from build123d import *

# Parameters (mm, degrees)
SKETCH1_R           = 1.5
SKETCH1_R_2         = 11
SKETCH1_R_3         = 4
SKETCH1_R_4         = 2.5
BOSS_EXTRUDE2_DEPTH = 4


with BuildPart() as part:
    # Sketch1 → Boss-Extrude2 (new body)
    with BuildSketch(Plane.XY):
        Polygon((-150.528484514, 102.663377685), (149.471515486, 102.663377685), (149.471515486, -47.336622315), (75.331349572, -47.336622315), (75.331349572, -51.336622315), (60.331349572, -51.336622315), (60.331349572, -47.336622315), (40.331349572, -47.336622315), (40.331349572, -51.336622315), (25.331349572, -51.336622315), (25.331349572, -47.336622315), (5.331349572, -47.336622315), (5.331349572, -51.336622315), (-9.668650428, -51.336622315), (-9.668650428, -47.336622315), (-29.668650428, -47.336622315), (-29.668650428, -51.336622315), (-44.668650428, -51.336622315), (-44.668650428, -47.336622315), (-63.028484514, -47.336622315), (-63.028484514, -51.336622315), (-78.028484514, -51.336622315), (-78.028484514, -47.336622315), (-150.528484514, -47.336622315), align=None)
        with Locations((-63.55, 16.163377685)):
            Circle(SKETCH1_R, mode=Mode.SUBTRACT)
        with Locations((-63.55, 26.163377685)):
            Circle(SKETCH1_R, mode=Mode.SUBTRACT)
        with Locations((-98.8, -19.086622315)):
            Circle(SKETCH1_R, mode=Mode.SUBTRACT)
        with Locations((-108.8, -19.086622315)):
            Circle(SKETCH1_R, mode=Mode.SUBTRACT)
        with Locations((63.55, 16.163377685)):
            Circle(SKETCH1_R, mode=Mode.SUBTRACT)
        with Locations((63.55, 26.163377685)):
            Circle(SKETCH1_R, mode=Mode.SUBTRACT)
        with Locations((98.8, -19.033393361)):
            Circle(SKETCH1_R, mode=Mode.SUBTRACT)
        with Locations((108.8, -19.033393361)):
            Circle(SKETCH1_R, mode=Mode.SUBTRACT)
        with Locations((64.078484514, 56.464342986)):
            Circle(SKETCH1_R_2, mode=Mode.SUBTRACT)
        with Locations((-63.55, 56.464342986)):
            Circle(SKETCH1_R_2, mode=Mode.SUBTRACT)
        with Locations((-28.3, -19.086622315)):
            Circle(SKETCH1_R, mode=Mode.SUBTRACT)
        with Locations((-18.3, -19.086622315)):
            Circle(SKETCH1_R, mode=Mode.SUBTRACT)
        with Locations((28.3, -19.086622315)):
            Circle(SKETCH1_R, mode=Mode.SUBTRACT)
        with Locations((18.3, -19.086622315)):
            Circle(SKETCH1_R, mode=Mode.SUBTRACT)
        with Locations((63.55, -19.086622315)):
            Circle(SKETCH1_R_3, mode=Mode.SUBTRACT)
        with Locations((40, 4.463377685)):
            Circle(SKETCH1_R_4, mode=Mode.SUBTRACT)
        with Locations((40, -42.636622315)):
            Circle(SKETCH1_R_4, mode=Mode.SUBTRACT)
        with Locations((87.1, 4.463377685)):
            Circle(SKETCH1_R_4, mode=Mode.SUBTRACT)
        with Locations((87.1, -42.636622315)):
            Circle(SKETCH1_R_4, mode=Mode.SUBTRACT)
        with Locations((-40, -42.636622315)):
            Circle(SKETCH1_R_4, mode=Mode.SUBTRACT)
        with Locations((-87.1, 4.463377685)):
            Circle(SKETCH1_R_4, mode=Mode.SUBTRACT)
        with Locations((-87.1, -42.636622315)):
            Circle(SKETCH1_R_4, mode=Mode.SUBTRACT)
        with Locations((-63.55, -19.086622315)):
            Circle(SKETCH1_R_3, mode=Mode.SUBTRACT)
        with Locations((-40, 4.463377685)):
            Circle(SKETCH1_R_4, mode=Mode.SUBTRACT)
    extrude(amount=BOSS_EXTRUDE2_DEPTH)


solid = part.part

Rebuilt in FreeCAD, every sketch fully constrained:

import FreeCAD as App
import Part
import Sketcher
from FreeCAD import Vector


def add_polygon(sketch, points):
    """Adds a closed chain of lines whose ends are joined by coincident constraints."""
    first, n = sketch.GeometryCount, len(points)
    for a, b in zip(points, points[1:] + points[:1]):
        sketch.addGeometry(Part.LineSegment(App.Vector(*a, 0), App.Vector(*b, 0)), False)
    for i in range(n):
        sketch.addConstraint(Sketcher.Constraint("Coincident", first + i, 2, first + (i + 1) % n, 1))

doc = App.newDocument("Part")
params = doc.addObject("Spreadsheet::Sheet", "Params")
for row, (alias, value) in enumerate([
    ("sketch1_diameter", "5 mm"),
    ("sketch1_diameter2", "3 mm"),
    ("sketch1_diameter3", "8 mm"),
    ("sketch1_diameter4", "22 mm"),
    ("sketch1_width", "300 mm"),
    ("pad1_length", "4 mm"),
], start=1):
    params.set(f"A{row}", alias)
    params.set(f"B{row}", "=" + value)
    params.setAlias(f"B{row}", alias)

body = doc.addObject("PartDesign::Body", "Body")

# Sketch on XY plane
sketch1 = body.newObject("Sketcher::SketchObject", "Sketch")
sketch1.AttachmentSupport = (doc.getObject("XY_Plane"), [""])
sketch1.MapMode = "FlatFace"
add_polygon(sketch1, [(149.5, 102.7), (-150.5, 102.7), (-150.5, -47.3), (-78, -47.3), (-78, -51.3), (-63, -51.3), (-63, -47.3), (-44.7, -47.3), (-44.7, -51.3), (-29.7, -51.3), (-29.7, -47.3), (-9.7, -47.3), (-9.7, -51.3), (5.3, -51.3), (5.3, -47.3), (25.3, -47.3), (25.3, -51.3), (40.3, -51.3), (40.3, -47.3), (60.3, -47.3), (60.3, -51.3), (75.3, -51.3), (75.3, -47.3), (149.5, -47.3)])  # lines 0-23
sketch1.addGeometry(Part.Circle(Vector(87.1, -42.6, 0), Vector(0, 0, 1), 2.5), False)  # 24
sketch1.addGeometry(Part.Circle(Vector(108.8, -19, 0), Vector(0, 0, 1), 1.5), False)  # 25
sketch1.addGeometry(Part.Circle(Vector(98.8, -19, 0), Vector(0, 0, 1), 1.5), False)  # 26
sketch1.addGeometry(Part.Circle(Vector(63.5, -19.1, 0), Vector(0, 0, 1), 4), False)  # 27
sketch1.addGeometry(Part.Circle(Vector(40, -42.6, 0), Vector(0, 0, 1), 2.5), False)  # 28
sketch1.addGeometry(Part.Circle(Vector(28.3, -19.1, 0), Vector(0, 0, 1), 1.5), False)  # 29
sketch1.addGeometry(Part.Circle(Vector(18.3, -19.1, 0), Vector(0, 0, 1), 1.5), False)  # 30
sketch1.addGeometry(Part.Circle(Vector(87.1, 4.5, 0), Vector(0, 0, 1), 2.5), False)  # 31
sketch1.addGeometry(Part.Circle(Vector(40, 4.5, 0), Vector(0, 0, 1), 2.5), False)  # 32
sketch1.addGeometry(Part.Circle(Vector(-40, -42.6, 0), Vector(0, 0, 1), 2.5), False)  # 33
sketch1.addGeometry(Part.Circle(Vector(-18.3, -19.1, 0), Vector(0, 0, 1), 1.5), False)  # 34
sketch1.addGeometry(Part.Circle(Vector(-28.3, -19.1, 0), Vector(0, 0, 1), 1.5), False)  # 35
sketch1.addGeometry(Part.Circle(Vector(-87.1, -42.6, 0), Vector(0, 0, 1), 2.5), False)  # 36
sketch1.addGeometry(Part.Circle(Vector(-63.5, -19.1, 0), Vector(0, 0, 1), 4), False)  # 37
sketch1.addGeometry(Part.Circle(Vector(-98.8, -19.1, 0), Vector(0, 0, 1), 1.5), False)  # 38
sketch1.addGeometry(Part.Circle(Vector(-108.8, -19.1, 0), Vector(0, 0, 1), 1.5), False)  # 39
sketch1.addGeometry(Part.Circle(Vector(-40, 4.5, 0), Vector(0, 0, 1), 2.5), False)  # 40
sketch1.addGeometry(Part.Circle(Vector(-87.1, 4.5, 0), Vector(0, 0, 1), 2.5), False)  # 41
sketch1.addGeometry(Part.Circle(Vector(63.5, 16.2, 0), Vector(0, 0, 1), 1.5), False)  # 42
sketch1.addGeometry(Part.Circle(Vector(63.5, 26.2, 0), Vector(0, 0, 1), 1.5), False)  # 43
sketch1.addGeometry(Part.Circle(Vector(64.1, 56.5, 0), Vector(0, 0, 1), 11), False)  # 44
sketch1.addGeometry(Part.Circle(Vector(-63.5, 16.2, 0), Vector(0, 0, 1), 1.5), False)  # 45
sketch1.addGeometry(Part.Circle(Vector(-63.5, 26.2, 0), Vector(0, 0, 1), 1.5), False)  # 46
sketch1.addGeometry(Part.Circle(Vector(-63.5, 56.5, 0), Vector(0, 0, 1), 11), False)  # 47
sketch1.addConstraint(Sketcher.Constraint("Horizontal", 0))
sketch1.addConstraint(Sketcher.Constraint("Vertical", 1))
sketch1.addConstraint(Sketcher.Constraint("Horizontal", 2))
sketch1.addConstraint(Sketcher.Constraint("Vertical", 3))
sketch1.addConstraint(Sketcher.Constraint("Horizontal", 4))
sketch1.addConstraint(Sketcher.Constraint("Vertical", 5))
sketch1.addConstraint(Sketcher.Constraint("Horizontal", 6))
sketch1.addConstraint(Sketcher.Constraint("Vertical", 7))
sketch1.addConstraint(Sketcher.Constraint("Horizontal", 8))
sketch1.addConstraint(Sketcher.Constraint("Vertical", 9))
sketch1.addConstraint(Sketcher.Constraint("Horizontal", 10))
sketch1.addConstraint(Sketcher.Constraint("Vertical", 11))
sketch1.addConstraint(Sketcher.Constraint("Horizontal", 12))
sketch1.addConstraint(Sketcher.Constraint("Vertical", 13))
sketch1.addConstraint(Sketcher.Constraint("Horizontal", 14))
sketch1.addConstraint(Sketcher.Constraint("Vertical", 15))
sketch1.addConstraint(Sketcher.Constraint("Horizontal", 16))
sketch1.addConstraint(Sketcher.Constraint("Vertical", 17))
sketch1.addConstraint(Sketcher.Constraint("Horizontal", 18))
sketch1.addConstraint(Sketcher.Constraint("Vertical", 19))
sketch1.addConstraint(Sketcher.Constraint("Horizontal", 20))
sketch1.addConstraint(Sketcher.Constraint("Vertical", 21))
sketch1.addConstraint(Sketcher.Constraint("Horizontal", 22))
sketch1.addConstraint(Sketcher.Constraint("Vertical", 23))
sketch1.addConstraint(Sketcher.Constraint("Equal", 25, 26))
sketch1.addConstraint(Sketcher.Constraint("Equal", 24, 28))
sketch1.addConstraint(Sketcher.Constraint("Equal", 26, 29))
sketch1.addConstraint(Sketcher.Constraint("Equal", 29, 30))
sketch1.addConstraint(Sketcher.Constraint("Equal", 28, 31))
sketch1.addConstraint(Sketcher.Constraint("Equal", 31, 32))
sketch1.addConstraint(Sketcher.Constraint("Equal", 32, 33))
sketch1.addConstraint(Sketcher.Constraint("Equal", 30, 34))
sketch1.addConstraint(Sketcher.Constraint("Equal", 34, 35))
sketch1.addConstraint(Sketcher.Constraint("Equal", 33, 36))
sketch1.addConstraint(Sketcher.Constraint("Equal", 27, 37))
sketch1.addConstraint(Sketcher.Constraint("Equal", 35, 38))
sketch1.addConstraint(Sketcher.Constraint("Equal", 38, 39))
sketch1.addConstraint(Sketcher.Constraint("Equal", 36, 40))
sketch1.addConstraint(Sketcher.Constraint("Equal", 40, 41))
sketch1.addConstraint(Sketcher.Constraint("Equal", 39, 42))
sketch1.addConstraint(Sketcher.Constraint("Equal", 42, 43))
sketch1.addConstraint(Sketcher.Constraint("Equal", 43, 45))
sketch1.addConstraint(Sketcher.Constraint("Equal", 45, 46))
sketch1.addConstraint(Sketcher.Constraint("Equal", 44, 47))
sketch1.addConstraint(Sketcher.Constraint("Symmetric", 28, 3, 33, 3, -2))
sketch1.addConstraint(Sketcher.Constraint("Symmetric", 30, 3, 34, 3, -2))
sketch1.addConstraint(Sketcher.Constraint("Symmetric", 29, 3, 35, 3, -2))
sketch1.addConstraint(Sketcher.Constraint("Symmetric", 24, 3, 36, 3, -2))
sketch1.addConstraint(Sketcher.Constraint("Symmetric", 27, 3, 37, 3, -2))
sketch1.addConstraint(Sketcher.Constraint("Symmetric", 32, 3, 40, 3, -2))
sketch1.addConstraint(Sketcher.Constraint("Symmetric", 31, 3, 41, 3, -2))
sketch1.addConstraint(Sketcher.Constraint("Symmetric", 42, 3, 45, 3, -2))
sketch1.addConstraint(Sketcher.Constraint("Symmetric", 43, 3, 46, 3, -2))
sketch1.addConstraint(Sketcher.Constraint("Horizontal", 25, 3, 26, 3))
sketch1.addConstraint(Sketcher.Constraint("Horizontal", 24, 3, 28, 3))
sketch1.addConstraint(Sketcher.Constraint("Horizontal", 27, 3, 29, 3))
sketch1.addConstraint(Sketcher.Constraint("Horizontal", 29, 3, 30, 3))
sketch1.addConstraint(Sketcher.Constraint("Horizontal", 31, 3, 32, 3))
sketch1.addConstraint(Sketcher.Constraint("Horizontal", 37, 3, 38, 3))
sketch1.addConstraint(Sketcher.Constraint("Horizontal", 38, 3, 39, 3))
sketch1.addConstraint(Sketcher.Constraint("Horizontal", 44, 3, 47, 3))
sketch1.addConstraint(Sketcher.Constraint("Horizontal", 2, 2, 5, 2))
sketch1.addConstraint(Sketcher.Constraint("Horizontal", 4, 2, 7, 2))
sketch1.addConstraint(Sketcher.Constraint("Horizontal", 6, 2, 9, 2))
sketch1.addConstraint(Sketcher.Constraint("Horizontal", 8, 2, 11, 2))
sketch1.addConstraint(Sketcher.Constraint("Horizontal", 10, 2, 13, 2))
sketch1.addConstraint(Sketcher.Constraint("Horizontal", 12, 2, 15, 2))
sketch1.addConstraint(Sketcher.Constraint("Horizontal", 14, 2, 17, 2))
sketch1.addConstraint(Sketcher.Constraint("Horizontal", 16, 2, 19, 2))
sketch1.addConstraint(Sketcher.Constraint("Horizontal", 18, 2, 21, 2))
sketch1.addConstraint(Sketcher.Constraint("Vertical", 24, 3, 31, 3))
sketch1.addConstraint(Sketcher.Constraint("Vertical", 28, 3, 32, 3))
sketch1.addConstraint(Sketcher.Constraint("Vertical", 27, 3, 42, 3))
sketch1.addConstraint(Sketcher.Constraint("Vertical", 42, 3, 43, 3))
sketch1.addConstraint(Sketcher.Constraint("Vertical", 46, 3, 47, 3))
sketch1.addConstraint(Sketcher.Constraint("Equal", 4, 8))
sketch1.addConstraint(Sketcher.Constraint("Equal", 8, 12))
sketch1.addConstraint(Sketcher.Constraint("Equal", 10, 14))
sketch1.addConstraint(Sketcher.Constraint("Equal", 12, 16))
sketch1.addConstraint(Sketcher.Constraint("Equal", 14, 18))
sketch1.addConstraint(Sketcher.Constraint("Equal", 16, 20))
sketch1.addConstraint(Sketcher.Constraint("Diameter", 24, 5.0))
sketch1.addConstraint(Sketcher.Constraint("Diameter", 25, 3.0))
sketch1.addConstraint(Sketcher.Constraint("Diameter", 27, 8.0))
sketch1.addConstraint(Sketcher.Constraint("Diameter", 44, 22.0))
sketch1.addConstraint(Sketcher.Constraint("DistanceX", 0, 2, 0, 1, 300.0))
sketch1.addConstraint(Sketcher.Constraint("DistanceX", 4, 1, 4, 2, 15.0))
sketch1.addConstraint(Sketcher.Constraint("DistanceX", 10, 1, 10, 2, 20.0))
sketch1.addConstraint(Sketcher.Constraint("DistanceY", 1, 2, 1, 1, 150.0))
sketch1.addConstraint(Sketcher.Constraint("DistanceY", 3, 2, 3, 1, 4.0))
sketch1.addConstraint(Sketcher.Constraint("DistanceX", 2, 1, 2, 2, 72.5))
sketch1.addConstraint(Sketcher.Constraint("DistanceX", -1, 1, 28, 3, 40.0))
sketch1.addConstraint(Sketcher.Constraint("DistanceX", 26, 3, 25, 3, 10.0))
sketch1.addConstraint(Sketcher.Constraint("DistanceX", 30, 3, 29, 3, 10.0))
sketch1.addConstraint(Sketcher.Constraint("DistanceX", 39, 3, 38, 3, 10.0))
sketch1.addConstraint(Sketcher.Constraint("DistanceY", 42, 3, 43, 3, 10.0))
sketch1.addConstraint(Sketcher.Constraint("DistanceX", -1, 1, 24, 3, 87.1))
sketch1.addConstraint(Sketcher.Constraint("DistanceX", -1, 1, 25, 3, 108.8))
sketch1.addConstraint(Sketcher.Constraint("DistanceX", -1, 1, 29, 3, 28.3))
sketch1.addConstraint(Sketcher.Constraint("DistanceX", 38, 3, -1, 1, 98.8))
sketch1.addConstraint(Sketcher.Constraint("DistanceY", 24, 3, 31, 3, 47.1))
sketch1.addConstraint(Sketcher.Constraint("DistanceY", 31, 3, 42, 3, 11.7))
sketch1.addConstraint(Sketcher.Constraint("DistanceY", 46, 3, 0, 2, 76.5))
sketch1.addConstraint(Sketcher.Constraint("DistanceX", -1, 1, 27, 3, 63.55))
sketch1.addConstraint(Sketcher.Constraint("DistanceY", 24, 3, 27, 3, 23.55))
sketch1.addConstraint(Sketcher.Constraint("DistanceX", 6, 1, 6, 2, 18.359834))
sketch1.addConstraint(Sketcher.Constraint("DistanceX", 6, 2, -1, 1, 44.66865))
sketch1.addConstraint(Sketcher.Constraint("DistanceY", 24, 3, 25, 3, 23.603229))
sketch1.addConstraint(Sketcher.Constraint("DistanceX", 44, 3, 23, 2, 85.393031))
sketch1.addConstraint(Sketcher.Constraint("DistanceY", 24, 3, -1, 1, 42.636622))
sketch1.addConstraint(Sketcher.Constraint("DistanceY", -1, 1, 44, 3, 56.464343))
sketch1.setExpression("Constraints[105]", "Params.sketch1_diameter")
sketch1.setExpression("Constraints[106]", "Params.sketch1_diameter2")
sketch1.setExpression("Constraints[107]", "Params.sketch1_diameter3")
sketch1.setExpression("Constraints[108]", "Params.sketch1_diameter4")
sketch1.setExpression("Constraints[109]", "Params.sketch1_width")
pad1 = body.newObject("PartDesign::Pad", "Pad")
pad1.Profile = sketch1
pad1.setExpression("Length", "Params.pad1_length")

doc.recompute()
